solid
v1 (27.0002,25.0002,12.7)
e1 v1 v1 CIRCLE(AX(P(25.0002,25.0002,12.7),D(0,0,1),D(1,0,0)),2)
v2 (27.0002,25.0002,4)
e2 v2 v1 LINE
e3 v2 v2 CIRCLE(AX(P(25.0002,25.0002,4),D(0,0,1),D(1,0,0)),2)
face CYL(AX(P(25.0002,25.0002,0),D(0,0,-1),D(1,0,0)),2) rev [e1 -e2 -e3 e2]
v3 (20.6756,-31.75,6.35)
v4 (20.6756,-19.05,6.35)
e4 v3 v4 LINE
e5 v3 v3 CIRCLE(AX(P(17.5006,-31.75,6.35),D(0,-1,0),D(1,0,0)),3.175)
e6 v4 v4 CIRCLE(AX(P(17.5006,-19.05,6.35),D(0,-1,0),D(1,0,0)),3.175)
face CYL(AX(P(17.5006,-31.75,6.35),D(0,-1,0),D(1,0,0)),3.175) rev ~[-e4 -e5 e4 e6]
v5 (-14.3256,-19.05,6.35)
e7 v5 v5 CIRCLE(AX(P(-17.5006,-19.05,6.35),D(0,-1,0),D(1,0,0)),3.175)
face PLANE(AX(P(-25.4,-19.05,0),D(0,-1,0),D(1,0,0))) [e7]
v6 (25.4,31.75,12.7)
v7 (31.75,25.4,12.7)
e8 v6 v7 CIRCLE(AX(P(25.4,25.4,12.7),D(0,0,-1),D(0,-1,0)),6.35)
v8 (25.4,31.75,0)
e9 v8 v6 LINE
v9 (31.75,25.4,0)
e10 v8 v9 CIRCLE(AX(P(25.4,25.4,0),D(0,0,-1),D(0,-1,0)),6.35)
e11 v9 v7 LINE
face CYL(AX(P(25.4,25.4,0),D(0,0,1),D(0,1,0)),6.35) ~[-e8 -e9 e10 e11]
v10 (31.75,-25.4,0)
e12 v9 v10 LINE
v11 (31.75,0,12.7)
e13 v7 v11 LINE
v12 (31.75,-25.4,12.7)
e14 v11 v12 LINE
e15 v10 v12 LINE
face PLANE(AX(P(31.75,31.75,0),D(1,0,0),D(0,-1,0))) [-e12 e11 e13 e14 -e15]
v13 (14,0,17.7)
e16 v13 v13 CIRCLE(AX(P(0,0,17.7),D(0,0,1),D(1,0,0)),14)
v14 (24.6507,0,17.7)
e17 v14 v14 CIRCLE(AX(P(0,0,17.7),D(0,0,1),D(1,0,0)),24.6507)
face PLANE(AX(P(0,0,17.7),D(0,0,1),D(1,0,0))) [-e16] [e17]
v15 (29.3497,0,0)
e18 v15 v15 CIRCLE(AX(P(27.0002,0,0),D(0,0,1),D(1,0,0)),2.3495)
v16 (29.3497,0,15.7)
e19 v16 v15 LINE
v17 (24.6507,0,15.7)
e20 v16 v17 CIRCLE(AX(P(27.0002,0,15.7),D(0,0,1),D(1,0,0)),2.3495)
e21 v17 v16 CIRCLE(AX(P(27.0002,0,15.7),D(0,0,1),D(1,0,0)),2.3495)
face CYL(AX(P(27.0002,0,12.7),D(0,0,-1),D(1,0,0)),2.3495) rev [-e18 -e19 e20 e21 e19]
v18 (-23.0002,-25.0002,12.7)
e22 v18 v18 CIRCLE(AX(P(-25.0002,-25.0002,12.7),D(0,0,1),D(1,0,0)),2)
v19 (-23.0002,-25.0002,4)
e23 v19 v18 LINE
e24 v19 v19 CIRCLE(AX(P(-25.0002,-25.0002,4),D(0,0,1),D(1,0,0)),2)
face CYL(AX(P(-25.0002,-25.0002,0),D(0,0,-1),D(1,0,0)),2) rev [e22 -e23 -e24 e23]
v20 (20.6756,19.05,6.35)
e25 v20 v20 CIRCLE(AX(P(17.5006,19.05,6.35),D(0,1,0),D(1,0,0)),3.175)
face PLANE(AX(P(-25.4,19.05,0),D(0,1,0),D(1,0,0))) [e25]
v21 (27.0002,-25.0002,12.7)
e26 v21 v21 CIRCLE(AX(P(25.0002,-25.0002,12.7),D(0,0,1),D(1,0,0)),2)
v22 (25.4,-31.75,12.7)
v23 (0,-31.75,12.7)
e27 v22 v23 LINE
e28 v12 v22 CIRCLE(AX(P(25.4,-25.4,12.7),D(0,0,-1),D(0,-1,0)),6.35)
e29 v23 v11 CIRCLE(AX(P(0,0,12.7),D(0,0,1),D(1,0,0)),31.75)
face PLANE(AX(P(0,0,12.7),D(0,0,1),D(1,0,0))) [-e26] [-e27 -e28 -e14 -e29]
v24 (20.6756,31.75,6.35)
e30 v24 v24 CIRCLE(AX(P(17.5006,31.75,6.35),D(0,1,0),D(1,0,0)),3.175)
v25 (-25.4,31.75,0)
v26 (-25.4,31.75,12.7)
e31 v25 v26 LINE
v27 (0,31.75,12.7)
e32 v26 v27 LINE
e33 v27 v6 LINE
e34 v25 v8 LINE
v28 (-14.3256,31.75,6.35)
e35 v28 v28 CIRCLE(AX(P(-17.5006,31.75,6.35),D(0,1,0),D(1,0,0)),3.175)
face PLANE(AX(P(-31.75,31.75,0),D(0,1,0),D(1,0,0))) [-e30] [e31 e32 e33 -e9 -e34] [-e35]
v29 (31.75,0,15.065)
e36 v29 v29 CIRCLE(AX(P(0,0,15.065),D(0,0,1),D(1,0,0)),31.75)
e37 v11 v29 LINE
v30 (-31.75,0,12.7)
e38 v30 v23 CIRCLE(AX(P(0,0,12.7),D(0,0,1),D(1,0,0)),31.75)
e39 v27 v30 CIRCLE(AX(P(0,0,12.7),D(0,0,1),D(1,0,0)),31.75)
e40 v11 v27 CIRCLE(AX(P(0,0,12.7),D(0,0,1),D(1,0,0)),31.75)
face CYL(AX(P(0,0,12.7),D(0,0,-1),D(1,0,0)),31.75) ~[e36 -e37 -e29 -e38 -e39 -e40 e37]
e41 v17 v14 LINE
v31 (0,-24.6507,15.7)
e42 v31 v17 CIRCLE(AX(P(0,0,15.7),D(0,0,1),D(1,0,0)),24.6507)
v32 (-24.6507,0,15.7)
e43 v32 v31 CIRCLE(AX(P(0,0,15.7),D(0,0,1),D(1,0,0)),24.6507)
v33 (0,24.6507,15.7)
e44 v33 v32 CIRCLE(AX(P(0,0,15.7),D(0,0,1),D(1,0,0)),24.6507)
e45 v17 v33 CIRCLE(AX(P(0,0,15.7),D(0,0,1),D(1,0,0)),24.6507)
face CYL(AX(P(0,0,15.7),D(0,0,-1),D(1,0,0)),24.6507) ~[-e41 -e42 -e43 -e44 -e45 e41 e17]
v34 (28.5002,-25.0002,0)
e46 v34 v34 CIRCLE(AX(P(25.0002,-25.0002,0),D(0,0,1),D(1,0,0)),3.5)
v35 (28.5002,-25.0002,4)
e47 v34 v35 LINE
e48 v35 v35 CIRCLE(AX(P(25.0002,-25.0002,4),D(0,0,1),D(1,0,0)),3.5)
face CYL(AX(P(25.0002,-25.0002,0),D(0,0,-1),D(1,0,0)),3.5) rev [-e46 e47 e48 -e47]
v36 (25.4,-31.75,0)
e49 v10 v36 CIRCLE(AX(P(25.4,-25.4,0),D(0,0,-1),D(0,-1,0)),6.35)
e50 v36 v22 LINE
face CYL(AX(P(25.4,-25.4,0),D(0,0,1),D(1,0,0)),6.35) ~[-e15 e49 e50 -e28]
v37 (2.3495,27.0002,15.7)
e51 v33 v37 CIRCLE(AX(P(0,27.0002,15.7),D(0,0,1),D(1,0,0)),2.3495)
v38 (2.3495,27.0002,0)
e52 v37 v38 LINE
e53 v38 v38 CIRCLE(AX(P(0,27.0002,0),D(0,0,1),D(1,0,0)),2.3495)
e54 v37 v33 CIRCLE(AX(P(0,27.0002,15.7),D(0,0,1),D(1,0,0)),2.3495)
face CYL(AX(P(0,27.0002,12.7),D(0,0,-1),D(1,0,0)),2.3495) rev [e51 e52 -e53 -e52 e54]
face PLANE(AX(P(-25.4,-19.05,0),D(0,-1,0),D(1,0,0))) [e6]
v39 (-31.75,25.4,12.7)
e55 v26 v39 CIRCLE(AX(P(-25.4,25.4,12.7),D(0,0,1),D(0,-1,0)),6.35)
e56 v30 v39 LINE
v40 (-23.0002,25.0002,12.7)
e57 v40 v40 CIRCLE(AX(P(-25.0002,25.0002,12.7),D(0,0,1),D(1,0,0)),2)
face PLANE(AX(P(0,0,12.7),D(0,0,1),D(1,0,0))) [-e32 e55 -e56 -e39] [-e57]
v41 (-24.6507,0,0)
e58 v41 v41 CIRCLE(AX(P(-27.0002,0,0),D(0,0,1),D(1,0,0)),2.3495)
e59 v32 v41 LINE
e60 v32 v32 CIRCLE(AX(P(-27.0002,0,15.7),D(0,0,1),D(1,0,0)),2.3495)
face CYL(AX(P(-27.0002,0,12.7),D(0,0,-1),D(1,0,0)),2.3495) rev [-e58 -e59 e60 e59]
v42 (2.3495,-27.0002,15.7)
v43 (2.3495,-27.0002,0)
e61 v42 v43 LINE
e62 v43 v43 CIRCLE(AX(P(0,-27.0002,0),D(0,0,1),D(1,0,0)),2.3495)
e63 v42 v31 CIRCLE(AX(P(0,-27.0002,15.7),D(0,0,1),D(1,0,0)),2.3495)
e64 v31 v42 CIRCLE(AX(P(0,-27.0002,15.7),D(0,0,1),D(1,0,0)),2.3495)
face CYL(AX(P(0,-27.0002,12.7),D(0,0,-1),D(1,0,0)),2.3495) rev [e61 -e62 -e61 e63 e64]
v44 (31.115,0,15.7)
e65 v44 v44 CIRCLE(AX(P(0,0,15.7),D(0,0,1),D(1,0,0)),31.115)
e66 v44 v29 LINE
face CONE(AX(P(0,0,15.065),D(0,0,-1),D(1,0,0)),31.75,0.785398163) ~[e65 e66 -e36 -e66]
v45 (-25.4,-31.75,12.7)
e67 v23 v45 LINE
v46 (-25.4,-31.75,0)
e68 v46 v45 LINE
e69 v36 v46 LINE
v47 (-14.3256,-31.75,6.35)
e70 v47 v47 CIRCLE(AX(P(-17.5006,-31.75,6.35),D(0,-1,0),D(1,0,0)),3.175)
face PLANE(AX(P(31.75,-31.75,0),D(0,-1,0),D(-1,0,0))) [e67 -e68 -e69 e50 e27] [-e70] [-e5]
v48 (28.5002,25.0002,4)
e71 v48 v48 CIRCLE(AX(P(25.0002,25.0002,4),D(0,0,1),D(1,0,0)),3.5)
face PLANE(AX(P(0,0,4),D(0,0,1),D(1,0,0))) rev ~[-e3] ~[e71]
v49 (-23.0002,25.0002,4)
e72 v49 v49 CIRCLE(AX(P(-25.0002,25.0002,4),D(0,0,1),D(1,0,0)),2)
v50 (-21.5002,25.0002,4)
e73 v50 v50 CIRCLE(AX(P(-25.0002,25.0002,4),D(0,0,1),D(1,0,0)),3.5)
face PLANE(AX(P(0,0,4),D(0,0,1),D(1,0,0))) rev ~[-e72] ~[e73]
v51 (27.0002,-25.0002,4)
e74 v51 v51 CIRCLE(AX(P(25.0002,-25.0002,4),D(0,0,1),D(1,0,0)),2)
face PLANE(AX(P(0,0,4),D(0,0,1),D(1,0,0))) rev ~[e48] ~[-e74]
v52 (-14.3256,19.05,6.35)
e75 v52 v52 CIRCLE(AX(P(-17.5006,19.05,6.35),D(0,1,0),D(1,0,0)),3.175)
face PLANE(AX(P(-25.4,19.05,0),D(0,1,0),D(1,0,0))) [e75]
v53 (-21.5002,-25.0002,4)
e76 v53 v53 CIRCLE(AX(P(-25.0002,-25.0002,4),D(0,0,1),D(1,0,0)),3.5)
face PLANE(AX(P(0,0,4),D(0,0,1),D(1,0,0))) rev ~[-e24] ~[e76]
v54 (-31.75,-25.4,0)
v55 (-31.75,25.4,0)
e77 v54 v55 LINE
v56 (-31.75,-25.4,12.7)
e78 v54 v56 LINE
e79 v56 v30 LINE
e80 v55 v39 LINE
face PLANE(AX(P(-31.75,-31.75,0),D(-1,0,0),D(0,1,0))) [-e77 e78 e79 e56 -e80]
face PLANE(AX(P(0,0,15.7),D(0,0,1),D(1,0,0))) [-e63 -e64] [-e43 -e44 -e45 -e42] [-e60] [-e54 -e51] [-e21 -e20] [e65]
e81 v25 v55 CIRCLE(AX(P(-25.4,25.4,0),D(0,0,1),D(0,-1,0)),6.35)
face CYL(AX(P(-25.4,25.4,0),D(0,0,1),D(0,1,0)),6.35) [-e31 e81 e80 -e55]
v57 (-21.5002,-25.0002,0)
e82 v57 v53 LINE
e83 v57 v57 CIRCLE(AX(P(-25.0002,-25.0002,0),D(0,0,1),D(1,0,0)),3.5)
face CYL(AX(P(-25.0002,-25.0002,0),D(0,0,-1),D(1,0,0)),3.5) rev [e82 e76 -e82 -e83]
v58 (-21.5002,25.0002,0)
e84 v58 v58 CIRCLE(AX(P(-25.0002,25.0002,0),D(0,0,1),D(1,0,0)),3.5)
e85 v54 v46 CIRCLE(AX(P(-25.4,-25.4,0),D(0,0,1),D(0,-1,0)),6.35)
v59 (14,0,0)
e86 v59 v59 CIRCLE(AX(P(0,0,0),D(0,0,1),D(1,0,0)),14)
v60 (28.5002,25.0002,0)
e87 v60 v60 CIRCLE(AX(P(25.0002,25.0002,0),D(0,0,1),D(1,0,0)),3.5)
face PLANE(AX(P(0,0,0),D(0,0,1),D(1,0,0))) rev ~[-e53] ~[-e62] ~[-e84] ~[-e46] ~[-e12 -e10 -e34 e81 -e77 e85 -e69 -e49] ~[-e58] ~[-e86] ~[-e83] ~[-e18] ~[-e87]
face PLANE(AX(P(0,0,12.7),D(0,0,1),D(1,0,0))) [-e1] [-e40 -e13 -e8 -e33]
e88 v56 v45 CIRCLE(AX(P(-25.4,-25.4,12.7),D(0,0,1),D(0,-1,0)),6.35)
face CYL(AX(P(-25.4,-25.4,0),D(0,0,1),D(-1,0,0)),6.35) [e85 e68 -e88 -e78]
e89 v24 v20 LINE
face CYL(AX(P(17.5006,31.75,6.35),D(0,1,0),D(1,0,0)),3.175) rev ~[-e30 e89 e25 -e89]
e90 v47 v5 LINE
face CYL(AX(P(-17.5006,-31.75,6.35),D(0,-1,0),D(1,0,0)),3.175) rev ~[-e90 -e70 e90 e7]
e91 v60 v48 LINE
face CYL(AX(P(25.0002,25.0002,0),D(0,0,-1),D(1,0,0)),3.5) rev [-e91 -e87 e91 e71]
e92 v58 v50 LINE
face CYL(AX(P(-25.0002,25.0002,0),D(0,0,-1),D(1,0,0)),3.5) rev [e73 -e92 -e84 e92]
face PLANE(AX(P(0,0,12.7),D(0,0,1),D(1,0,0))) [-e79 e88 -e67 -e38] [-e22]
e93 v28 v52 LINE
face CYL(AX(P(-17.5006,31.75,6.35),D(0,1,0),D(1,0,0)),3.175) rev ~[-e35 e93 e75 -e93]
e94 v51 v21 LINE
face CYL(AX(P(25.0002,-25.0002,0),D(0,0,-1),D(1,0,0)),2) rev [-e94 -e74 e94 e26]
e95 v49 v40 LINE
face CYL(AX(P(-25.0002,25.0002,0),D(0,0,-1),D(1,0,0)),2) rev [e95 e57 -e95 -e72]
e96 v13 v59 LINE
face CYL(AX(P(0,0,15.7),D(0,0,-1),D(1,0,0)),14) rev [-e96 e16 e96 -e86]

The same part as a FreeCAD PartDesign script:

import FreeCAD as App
import Part
import Sketcher

V = App.Vector
Q = App.Units.Quantity


def edges_at(feature, points):
    """Names of the edges that pass closest to the given points."""
    edges = feature.Shape.Edges
    near = lambda p: min(range(len(edges)), key=lambda i: edges[i].distToShape(Part.Vertex(*p))[0])
    return sorted({f"Edge{near(p) + 1}" for p in points})

doc = App.newDocument("Part")
body = doc.addObject("PartDesign::Body", "Body")

sketch1 = doc.addObject("Sketcher::SketchObject", "Sketch")
body.addObject(sketch1)
sketch1.AttachmentSupport = (doc.XY_Plane, [""])
sketch1.MapMode = "FlatFace"
sketch1.addGeometry(Part.LineSegment(V(31.75, 31.75, 0), V(-31.75, 31.75, 0)), False)
sketch1.addGeometry(Part.LineSegment(V(-31.75, 31.75, 0), V(-31.75, -31.75, 0)), False)
sketch1.addGeometry(Part.LineSegment(V(-31.75, -31.75, 0), V(31.75, -31.75, 0)), False)
sketch1.addGeometry(Part.LineSegment(V(31.75, -31.75, 0), V(31.75, 31.75, 0)), False)
sketch1.addGeometry(Part.Circle(V(0, -27.0002, 0), V(0, 0, 1), 2.3495), False)
sketch1.addGeometry(Part.Circle(V(-27.0002, 0, 0), V(0, 0, 1), 2.3495), False)
sketch1.addGeometry(Part.Circle(V(0, 0, 0), V(0, 0, 1), 14), False)
sketch1.addGeometry(Part.Circle(V(27.0002, 0, 0), V(0, 0, 1), 2.3495), False)
sketch1.addGeometry(Part.Circle(V(0, 27.0002, 0), V(0, 0, 1), 2.3495), False)
sketch1.addGeometry(Part.Circle(V(-25.0002, -25.0002, 0), V(0, 0, 1), 2), False)
sketch1.addGeometry(Part.Circle(V(25.0002, -25.0002, 0), V(0, 0, 1), 2), False)
sketch1.addGeometry(Part.Circle(V(-25.0002, 25.0002, 0), V(0, 0, 1), 2), False)
sketch1.addGeometry(Part.Circle(V(25.0002, 25.0002, 0), V(0, 0, 1), 2), False)
sketch1.addConstraint(Sketcher.Constraint("Coincident", 0, 2, 1, 1))
sketch1.addConstraint(Sketcher.Constraint("Coincident", 1, 2, 2, 1))
sketch1.addConstraint(Sketcher.Constraint("Coincident", 2, 2, 3, 1))
sketch1.addConstraint(Sketcher.Constraint("Coincident", 3, 2, 0, 1))
sketch1.addConstraint(Sketcher.Constraint("Horizontal", 0))
sketch1.addConstraint(Sketcher.Constraint("Vertical", 1))
sketch1.addConstraint(Sketcher.Constraint("Horizontal", 2))
sketch1.addConstraint(Sketcher.Constraint("Vertical", 3))
sketch1.addConstraint(Sketcher.Constraint("Coincident", 6, 3, -1, 1))
sketch1.addConstraint(Sketcher.Constraint("Equal", 4, 5))
sketch1.addConstraint(Sketcher.Constraint("Equal", 5, 7))
sketch1.addConstraint(Sketcher.Constraint("Equal", 7, 8))
sketch1.addConstraint(Sketcher.Constraint("Equal", 9, 10))
sketch1.addConstraint(Sketcher.Constraint("Equal", 10, 11))
sketch1.addConstraint(Sketcher.Constraint("Equal", 11, 12))
sketch1.addConstraint(Sketcher.Constraint("Symmetric", 5, 3, 7, 3, -1, 1))
sketch1.addConstraint(Sketcher.Constraint("Symmetric", 4, 3, 8, 3, -1, 1))
sketch1.addConstraint(Sketcher.Constraint("Symmetric", 10, 3, 11, 3, -1, 1))
sketch1.addConstraint(Sketcher.Constraint("Symmetric", 9, 3, 12, 3, -1, 1))
sketch1.addConstraint(Sketcher.Constraint("Symmetric", 0, 2, 2, 2, -1, 1))
sketch1.addConstraint(Sketcher.Constraint("Symmetric", 9, 3, 10, 3, -2))
sketch1.addConstraint(Sketcher.Constraint("PointOnObject", 4, 3, -2))
sketch1.addConstraint(Sketcher.Constraint("PointOnObject", 5, 3, -1))
sketch1.addConstraint(Sketcher.Constraint("Equal", 2, 1))
sketch1.addConstraint(Sketcher.Constraint("Diameter", 4, Q("0.185 in")))
sketch1.addConstraint(Sketcher.Constraint("DistanceX", 0, 2, 0, 1, Q("2.5 in")))
sketch1.addConstraint(Sketcher.Constraint("Diameter", 6, 28.0))
sketch1.addConstraint(Sketcher.Constraint("Diameter", 9, 4.0))
sketch1.addConstraint(Sketcher.Constraint("DistanceY", 4, 3, -1, 1, Q("1.063 in")))
sketch1.addConstraint(Sketcher.Constraint("DistanceX", 5, 3, -1, 1, Q("1.063 in")))
sketch1.addConstraint(Sketcher.Constraint("DistanceX", 9, 3, -1, 1, 25.0002))
sketch1.addConstraint(Sketcher.Constraint("DistanceY", 9, 3, -1, 1, 25.0002))
pad1 = doc.addObject("PartDesign::Pad", "Pad")
body.addObject(pad1)
pad1.Profile = sketch1
pad1.Length = Q("0.5 in")

sketch2 = doc.addObject("Sketcher::SketchObject", "Sketch001")
body.addObject(sketch2)
sketch2.AttachmentSupport = (doc.XY_Plane, [""])
sketch2.MapMode = "FlatFace"
sketch2.addGeometry(Part.Circle(V(-25.0002, 25.0002, 0), V(0, 0, 1), 3.5), False)
sketch2.addGeometry(Part.Circle(V(-25.0002, 25.0002, 0), V(0, 0, 1), 2), False)
sketch2.addGeometry(Part.Circle(V(25.0002, 25.0002, 0), V(0, 0, 1), 3.5), False)
sketch2.addGeometry(Part.Circle(V(25.0002, 25.0002, 0), V(0, 0, 1), 2), False)
sketch2.addGeometry(Part.Circle(V(-25.0002, -25.0002, 0), V(0, 0, 1), 3.5), False)
sketch2.addGeometry(Part.Circle(V(-25.0002, -25.0002, 0), V(0, 0, 1), 2), False)
sketch2.addGeometry(Part.Circle(V(25.0002, -25.0002, 0), V(0, 0, 1), 3.5), False)
sketch2.addGeometry(Part.Circle(V(25.0002, -25.0002, 0), V(0, 0, 1), 2), False)
sketch2.addConstraint(Sketcher.Constraint("Coincident", 1, 3, 0, 3))
sketch2.addConstraint(Sketcher.Constraint("Coincident", 3, 3, 2, 3))
sketch2.addConstraint(Sketcher.Constraint("Coincident", 5, 3, 4, 3))
sketch2.addConstraint(Sketcher.Constraint("Coincident", 7, 3, 6, 3))
sketch2.addConstraint(Sketcher.Constraint("Equal", 0, 2))
sketch2.addConstraint(Sketcher.Constraint("Equal", 1, 3))
sketch2.addConstraint(Sketcher.Constraint("Equal", 2, 4))
sketch2.addConstraint(Sketcher.Constraint("Equal", 3, 5))
sketch2.addConstraint(Sketcher.Constraint("Equal", 4, 6))
sketch2.addConstraint(Sketcher.Constraint("Equal", 5, 7))
sketch2.addConstraint(Sketcher.Constraint("Symmetric", 2, 3, 4, 3, -1, 1))
sketch2.addConstraint(Sketcher.Constraint("Symmetric", 0, 3, 6, 3, -1, 1))
sketch2.addConstraint(Sketcher.Constraint("Symmetric", 0, 3, 2, 3, -2))
sketch2.addConstraint(Sketcher.Constraint("Diameter", 0, Q("0.2756 in")))
sketch2.addConstraint(Sketcher.Constraint("Diameter", 1, 4.0))
sketch2.addConstraint(Sketcher.Constraint("DistanceX", 0, 3, -1, 1, 25.0002))
sketch2.addConstraint(Sketcher.Constraint("DistanceY", -1, 1, 0, 3, 25.0002))
pocket1 = doc.addObject("PartDesign::Pocket", "Pocket")
body.addObject(pocket1)
pocket1.Profile = sketch2
pocket1.Length = 4
pocket1.Reversed = True
doc.recompute()

fillet = doc.addObject("PartDesign::Fillet", "Fillet")
body.addObject(fillet)
fillet.Base = (pocket1, edges_at(pocket1, [
    (31.75, 31.75, 6.35),
    (-31.75, 31.75, 6.35),
    (31.75, -31.75, 6.35),
    (-31.75, -31.75, 6.35),
]))
fillet.Radius = Q("0.25 in")

sketch3 = doc.addObject("Sketcher::SketchObject", "Sketch002")
body.addObject(sketch3)
sketch3.AttachmentSupport = (doc.XY_Plane, [""])
sketch3.MapMode = "FlatFace"
sketch3.AttachmentOffset = App.Placement(V(0, 0, 0.5 * 25.4), App.Rotation())
sketch3.addGeometry(Part.Circle(V(0, 0, 0), V(0, 0, 1), 31.75), False)
sketch3.addGeometry(Part.Circle(V(0, -27.0002, 0), V(0, 0, 1), 2.3495), False)
sketch3.addGeometry(Part.Circle(V(-27.0002, 0, 0), V(0, 0, 1), 2.3495), False)
sketch3.addGeometry(Part.Circle(V(0, 0, 0), V(0, 0, 1), 14), False)
sketch3.addGeometry(Part.Circle(V(27.0002, 0, 0), V(0, 0, 1), 2.3495), False)
sketch3.addGeometry(Part.Circle(V(0, 27.0002, 0), V(0, 0, 1), 2.3495), False)
sketch3.addConstraint(Sketcher.Constraint("Coincident", 0, 3, -1, 1))
sketch3.addConstraint(Sketcher.Constraint("Coincident", 3, 3, -1, 1))
sketch3.addConstraint(Sketcher.Constraint("Equal", 1, 2))
sketch3.addConstraint(Sketcher.Constraint("Equal", 2, 4))
sketch3.addConstraint(Sketcher.Constraint("Equal", 4, 5))
sketch3.addConstraint(Sketcher.Constraint("Symmetric", 2, 3, 4, 3, -1, 1))
sketch3.addConstraint(Sketcher.Constraint("Symmetric", 1, 3, 5, 3, -1, 1))
sketch3.addConstraint(Sketcher.Constraint("PointOnObject", 1, 3, -2))
sketch3.addConstraint(Sketcher.Constraint("PointOnObject", 2, 3, -1))
sketch3.addConstraint(Sketcher.Constraint("Diameter", 0, Q("2.5 in")))
sketch3.addConstraint(Sketcher.Constraint("Diameter", 1, Q("0.185 in")))
sketch3.addConstraint(Sketcher.Constraint("Diameter", 3, 28.0))
sketch3.addConstraint(Sketcher.Constraint("DistanceY", 1, 3, -1, 1, Q("1.063 in")))
sketch3.addConstraint(Sketcher.Constraint("DistanceX", 2, 3, -1, 1, Q("1.063 in")))
pad2 = doc.addObject("PartDesign::Pad", "Pad001")
body.addObject(pad2)
pad2.Profile = sketch3
pad2.Length = Q("0.1181102 in")

sketch4 = doc.addObject("Sketcher::SketchObject", "Sketch003")
body.addObject(sketch4)
sketch4.AttachmentSupport = (doc.XY_Plane, [""])
sketch4.MapMode = "FlatFace"
sketch4.AttachmentOffset = App.Placement(V(0, 0, 0.6181102 * 25.4), App.Rotation())
sketch4.addGeometry(Part.Circle(V(0, 0, 0), V(0, 0, 1), 24.6507), False)
sketch4.addGeometry(Part.Circle(V(0, 0, 0), V(0, 0, 1), 14), False)
sketch4.addConstraint(Sketcher.Constraint("Coincident", 0, 3, -1, 1))
sketch4.addConstraint(Sketcher.Constraint("Coincident", 1, 3, -1, 1))
sketch4.addConstraint(Sketcher.Constraint("Diameter", 0, Q("1.941 in")))
sketch4.addConstraint(Sketcher.Constraint("Diameter", 1, 28.0))
pad3 = doc.addObject("PartDesign::Pad", "Pad002")
body.addObject(pad3)
pad3.Profile = sketch4
pad3.Length = 2
doc.recompute()

chamfer = doc.addObject("PartDesign::Chamfer", "Chamfer")
body.addObject(chamfer)
chamfer.Base = (pad3, edges_at(pad3, [(-31.75, 0, 15.7)]))
chamfer.Size = Q("0.025 in")

sketch5 = doc.addObject("Sketcher::SketchObject", "Sketch004")
body.addObject(sketch5)
sketch5.AttachmentSupport = (doc.XZ_Plane, [""])
sketch5.MapMode = "FlatFace"
sketch5.AttachmentOffset = App.Placement(V(0, 0, -1.25 * 25.4), App.Rotation())
sketch5.addGeometry(Part.Circle(V(-17.5006, 6.35, 0), V(0, 0, 1), 3.175), False)
sketch5.addGeometry(Part.Circle(V(17.5006, 6.35, 0), V(0, 0, 1), 3.175), False)
sketch5.addConstraint(Sketcher.Constraint("Equal", 0, 1))
sketch5.addConstraint(Sketcher.Constraint("Symmetric", 0, 3, 1, 3, -2))
sketch5.addConstraint(Sketcher.Constraint("Diameter", 0, Q("0.25 in")))
sketch5.addConstraint(Sketcher.Constraint("DistanceY", -1, 1, 0, 3, Q("0.25 in")))
sketch5.addConstraint(Sketcher.Constraint("DistanceX", 0, 3, 1, 3, Q("1.378 in")))
pocket2 = doc.addObject("PartDesign::Pocket", "Pocket001")
body.addObject(pocket2)
pocket2.Profile = sketch5
pocket2.Length = Q("0.5 in")
pocket2.Reversed = True

sketch6 = doc.addObject("Sketcher::SketchObject", "Sketch005")
body.addObject(sketch6)
sketch6.AttachmentSupport = (doc.XZ_Plane, [""])
sketch6.MapMode = "FlatFace"
sketch6.AttachmentOffset = App.Placement(V(0, 0, 1.25 * 25.4), App.Rotation())
sketch6.addGeometry(Part.Circle(V(-17.5006, 6.35, 0), V(0, 0, 1), 3.175), False)
sketch6.addGeometry(Part.Circle(V(17.5006, 6.35, 0), V(0, 0, 1), 3.175), False)
sketch6.addConstraint(Sketcher.Constraint("Equal", 0, 1))
sketch6.addConstraint(Sketcher.Constraint("Symmetric", 0, 3, 1, 3, -2))
sketch6.addConstraint(Sketcher.Constraint("Diameter", 0, Q("0.25 in")))
sketch6.addConstraint(Sketcher.Constraint("DistanceY", -1, 1, 0, 3, Q("0.25 in")))
sketch6.addConstraint(Sketcher.Constraint("DistanceX", 0, 3, 1, 3, Q("1.378 in")))
pocket3 = doc.addObject("PartDesign::Pocket", "Pocket002")
body.addObject(pocket3)
pocket3.Profile = sketch6
pocket3.Length = Q("0.5 in")

doc.recompute()
